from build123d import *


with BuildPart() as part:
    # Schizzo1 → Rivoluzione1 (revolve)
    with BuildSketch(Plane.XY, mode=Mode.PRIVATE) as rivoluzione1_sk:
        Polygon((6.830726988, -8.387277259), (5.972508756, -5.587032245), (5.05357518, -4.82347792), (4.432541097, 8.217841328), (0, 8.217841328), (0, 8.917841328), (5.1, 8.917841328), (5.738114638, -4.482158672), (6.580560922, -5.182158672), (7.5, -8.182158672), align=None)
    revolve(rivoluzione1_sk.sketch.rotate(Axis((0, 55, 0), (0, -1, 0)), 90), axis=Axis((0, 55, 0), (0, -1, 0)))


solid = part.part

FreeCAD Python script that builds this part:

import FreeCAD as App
import Part
import Sketcher

doc = App.newDocument("Part")
params = doc.addObject("Spreadsheet::Sheet", "Params")
for row, (alias, value) in enumerate([
    ("sketch1_width", "5.1 mm"),
    ("sketch1_height", "0.7 mm"),
    ("sketch1_length", "0.7 mm"),
    ("revolution_angle", "360 deg"),
], start=1):
    params.set(f"A{row}", alias)
    params.set(f"B{row}", "=" + value)
    params.setAlias(f"B{row}", alias)

body = doc.addObject("PartDesign::Body", "Body")

# Sketch on XY plane
sketch1 = body.newObject("Sketcher::SketchObject", "Sketch")
sketch1.AttachmentSupport = (doc.getObject("XY_Plane"), [""])
sketch1.MapMode = "FlatFace"
sketch1.addGeometry(Part.LineSegment(App.Vector(5.972509, -5.587032, 0), App.Vector(6.830727, -8.387277, 0)), False)
sketch1.addGeometry(Part.LineSegment(App.Vector(6.830727, -8.387277, 0), App.Vector(7.5, -8.182159, 0)), False)
sketch1.addGeometry(Part.LineSegment(App.Vector(7.5, -8.182159, 0), App.Vector(6.580561, -5.182159, 0)), False)
sketch1.addGeometry(Part.LineSegment(App.Vector(6.580561, -5.182159, 0), App.Vector(5.738115, -4.482159, 0)), False)
sketch1.addGeometry(Part.LineSegment(App.Vector(5.738115, -4.482159, 0), App.Vector(5.1, 8.917841, 0)), False)
sketch1.addGeometry(Part.LineSegment(App.Vector(5.1, 8.917841, 0), App.Vector(0, 8.917841, 0)), False)
sketch1.addGeometry(Part.LineSegment(App.Vector(0, 8.917841, 0), App.Vector(0, 8.217841, 0)), False)
sketch1.addGeometry(Part.LineSegment(App.Vector(0, 8.217841, 0), App.Vector(4.432541, 8.217841, 0)), False)
sketch1.addGeometry(Part.LineSegment(App.Vector(4.432541, 8.217841, 0), App.Vector(5.053575, -4.823478, 0)), False)
sketch1.addGeometry(Part.LineSegment(App.Vector(5.053575, -4.823478, 0), App.Vector(5.972509, -5.587032, 0)), False)
sketch1.addConstraint(Sketcher.Constraint("Coincident", 0, 2, 1, 1))
sketch1.addConstraint(Sketcher.Constraint("Coincident", 1, 2, 2, 1))
sketch1.addConstraint(Sketcher.Constraint("Coincident", 2, 2, 3, 1))
sketch1.addConstraint(Sketcher.Constraint("Coincident", 3, 2, 4, 1))
sketch1.addConstraint(Sketcher.Constraint("Coincident", 4, 2, 5, 1))
sketch1.addConstraint(Sketcher.Constraint("Coincident", 5, 2, 6, 1))
sketch1.addConstraint(Sketcher.Constraint("Coincident", 6, 2, 7, 1))
sketch1.addConstraint(Sketcher.Constraint("Coincident", 7, 2, 8, 1))
sketch1.addConstraint(Sketcher.Constraint("Coincident", 8, 2, 9, 1))
sketch1.addConstraint(Sketcher.Constraint("Coincident", 9, 2, 0, 1))
sketch1.addConstraint(Sketcher.Constraint("Horizontal", 5))
sketch1.addConstraint(Sketcher.Constraint("Vertical", 6))
sketch1.addConstraint(Sketcher.Constraint("Horizontal", 7))
sketch1.addConstraint(Sketcher.Constraint("PointOnObject", 5, 2, -2))
sketch1.addConstraint(Sketcher.Constraint("Perpendicular", 0, 1))
sketch1.addConstraint(Sketcher.Constraint("Perpendicular", 1, 2))
sketch1.addConstraint(Sketcher.Constraint("Parallel", 4, 8))
sketch1.addConstraint(Sketcher.Constraint("Parallel", 3, 9))
sketch1.addConstraint(Sketcher.Constraint("DistanceX", 5, 2, 5, 1, 5.1))
sketch1.addConstraint(Sketcher.Constraint("DistanceY", 6, 2, 6, 1, 0.7))
sketch1.addConstraint(Sketcher.Constraint("DistanceY", 1, 2, 2, 2, 3.0))
sketch1.addConstraint(Sketcher.Constraint("Distance", 1, 0.7))
sketch1.addConstraint(Sketcher.Constraint("DistanceX", -1, 1, 1, 2, 7.5))
sketch1.addConstraint(Sketcher.Constraint("DistanceY", 2, 2, 3, 2, 0.7))
sketch1.addConstraint(Sketcher.Constraint("DistanceY", 3, 2, 4, 2, 13.4))
sketch1.addConstraint(Sketcher.Constraint("DistanceX", 7, 1, 7, 2, 4.432541))
sketch1.addConstraint(Sketcher.Constraint("DistanceY", 0, 2, 8, 2, 3.563799))
sketch1.addConstraint(Sketcher.Constraint("Distance", 9, 1.194761))
sketch1.addConstraint(Sketcher.Constraint("DistanceY", 1, 2, -1, 1, 8.182159))
sketch1.addConstraint(Sketcher.Constraint("DistanceX", -1, 1, 2, 2, 6.580561))
sketch1.setExpression("Constraints[18]", "Params.sketch1_width")
sketch1.setExpression("Constraints[19]", "Params.sketch1_height")
sketch1.setExpression("Constraints[21]", "Params.sketch1_length")
revolution = body.newObject("PartDesign::Revolution", "Revolution")
revolution.Profile = sketch1
revolution.ReferenceAxis = (sketch1, ["V_Axis"])
revolution.setExpression("Angle", "Params.revolution_angle")

doc.recompute()
